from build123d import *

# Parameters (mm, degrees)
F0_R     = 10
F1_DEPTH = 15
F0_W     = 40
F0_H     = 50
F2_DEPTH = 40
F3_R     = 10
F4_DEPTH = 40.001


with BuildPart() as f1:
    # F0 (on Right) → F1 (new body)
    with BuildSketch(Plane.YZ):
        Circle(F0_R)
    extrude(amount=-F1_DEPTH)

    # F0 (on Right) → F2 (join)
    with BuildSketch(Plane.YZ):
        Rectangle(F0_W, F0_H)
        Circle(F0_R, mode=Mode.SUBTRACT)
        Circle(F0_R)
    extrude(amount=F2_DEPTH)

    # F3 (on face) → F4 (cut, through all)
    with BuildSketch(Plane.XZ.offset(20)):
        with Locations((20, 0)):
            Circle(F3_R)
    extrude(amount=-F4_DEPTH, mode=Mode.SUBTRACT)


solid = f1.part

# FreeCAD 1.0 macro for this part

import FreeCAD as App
import Part
import Sketcher

V = App.Vector


def add_polygon(sketch, points):
    """Adds a closed chain of lines whose ends are joined by coincident constraints."""
    first, n = sketch.GeometryCount, len(points)
    for a, b in zip(points, points[1:] + points[:1]):
        sketch.addGeometry(Part.LineSegment(App.Vector(*a, 0), App.Vector(*b, 0)), False)
    for i in range(n):
        sketch.addConstraint(Sketcher.Constraint("Coincident", first + i, 2, first + (i + 1) % n, 1))

doc = App.newDocument("Part")
params = doc.addObject("Spreadsheet::Sheet", "Params")
for row, (alias, value) in enumerate([
    ("sketch1_diameter", "20 mm"),
    ("pad1_length", "15 mm"),
    ("sketch2_width", "40 mm"),
    ("sketch2_height", "50 mm"),
    ("pad2_length", "40 mm"),
    ("sketch3_diameter", "20 mm"),
], start=1):
    params.set(f"A{row}", alias)
    params.set(f"B{row}", "=" + value)
    params.setAlias(f"B{row}", alias)

body = doc.addObject("PartDesign::Body", "Body")

sketch1 = body.newObject("Sketcher::SketchObject", "Sketch")
sketch1.AttachmentSupport = (doc.getObject("YZ_Plane"), [""])
sketch1.MapMode = "FlatFace"
sketch1.addGeometry(Part.Circle(V(0, 0, 0), V(0, 0, 1), 10), False)
sketch1.addConstraint([
    Sketcher.Constraint("Coincident", 0, 3, -1, 1),
    Sketcher.Constraint("Diameter", 0, 20.0),
])
sketch1.setExpression("Constraints[1]", "Params.sketch1_diameter")
pad1 = body.newObject("PartDesign::Pad", "Pad")
pad1.Profile = sketch1
pad1.setExpression("Length", "Params.pad1_length")
pad1.Reversed = True

sketch2 = body.newObject("Sketcher::SketchObject", "Sketch001")
sketch2.AttachmentSupport = (doc.getObject("YZ_Plane"), [""])
sketch2.MapMode = "FlatFace"
add_polygon(sketch2, [(-20, 25), (-20, -25), (20, -25), (20, 25)])
sketch2.addConstraint([
    Sketcher.Constraint("Vertical", 0),
    Sketcher.Constraint("Horizontal", 1),
    Sketcher.Constraint("Vertical", 2),
    Sketcher.Constraint("Horizontal", 3),
    Sketcher.Constraint("Symmetric", 0, 2, 2, 2, -1, 1),
    Sketcher.Constraint("DistanceX", 1, 1, 1, 2, 40.0),
    Sketcher.Constraint("DistanceY", 0, 2, 0, 1, 50.0),
])
sketch2.setExpression("Constraints[9]", "Params.sketch2_width")
sketch2.setExpression("Constraints[10]", "Params.sketch2_height")
pad2 = body.newObject("PartDesign::Pad", "Pad001")
pad2.Profile = sketch2
pad2.setExpression("Length", "Params.pad2_length")

sketch3 = body.newObject("Sketcher::SketchObject", "Sketch002")
sketch3.AttachmentSupport = (doc.getObject("XZ_Plane"), [""])
sketch3.MapMode = "FlatFace"
sketch3.AttachmentOffset = App.Placement(V(0, 0, 20), App.Rotation())
sketch3.addGeometry(Part.Circle(V(20, 0, 0), V(0, 0, 1), 10), False)
sketch3.addConstraint([
    Sketcher.Constraint("PointOnObject", 0, 3, -1),
    Sketcher.Constraint("Diameter", 0, 20.0),
    Sketcher.Constraint("DistanceX", -1, 1, 0, 3, 20.0),
])
sketch3.setExpression("Constraints[1]", "Params.sketch3_diameter")
pocket1 = body.newObject("PartDesign::Pocket", "Pocket")
pocket1.Profile = sketch3
pocket1.Type = "ThroughAll"

doc.recompute()
